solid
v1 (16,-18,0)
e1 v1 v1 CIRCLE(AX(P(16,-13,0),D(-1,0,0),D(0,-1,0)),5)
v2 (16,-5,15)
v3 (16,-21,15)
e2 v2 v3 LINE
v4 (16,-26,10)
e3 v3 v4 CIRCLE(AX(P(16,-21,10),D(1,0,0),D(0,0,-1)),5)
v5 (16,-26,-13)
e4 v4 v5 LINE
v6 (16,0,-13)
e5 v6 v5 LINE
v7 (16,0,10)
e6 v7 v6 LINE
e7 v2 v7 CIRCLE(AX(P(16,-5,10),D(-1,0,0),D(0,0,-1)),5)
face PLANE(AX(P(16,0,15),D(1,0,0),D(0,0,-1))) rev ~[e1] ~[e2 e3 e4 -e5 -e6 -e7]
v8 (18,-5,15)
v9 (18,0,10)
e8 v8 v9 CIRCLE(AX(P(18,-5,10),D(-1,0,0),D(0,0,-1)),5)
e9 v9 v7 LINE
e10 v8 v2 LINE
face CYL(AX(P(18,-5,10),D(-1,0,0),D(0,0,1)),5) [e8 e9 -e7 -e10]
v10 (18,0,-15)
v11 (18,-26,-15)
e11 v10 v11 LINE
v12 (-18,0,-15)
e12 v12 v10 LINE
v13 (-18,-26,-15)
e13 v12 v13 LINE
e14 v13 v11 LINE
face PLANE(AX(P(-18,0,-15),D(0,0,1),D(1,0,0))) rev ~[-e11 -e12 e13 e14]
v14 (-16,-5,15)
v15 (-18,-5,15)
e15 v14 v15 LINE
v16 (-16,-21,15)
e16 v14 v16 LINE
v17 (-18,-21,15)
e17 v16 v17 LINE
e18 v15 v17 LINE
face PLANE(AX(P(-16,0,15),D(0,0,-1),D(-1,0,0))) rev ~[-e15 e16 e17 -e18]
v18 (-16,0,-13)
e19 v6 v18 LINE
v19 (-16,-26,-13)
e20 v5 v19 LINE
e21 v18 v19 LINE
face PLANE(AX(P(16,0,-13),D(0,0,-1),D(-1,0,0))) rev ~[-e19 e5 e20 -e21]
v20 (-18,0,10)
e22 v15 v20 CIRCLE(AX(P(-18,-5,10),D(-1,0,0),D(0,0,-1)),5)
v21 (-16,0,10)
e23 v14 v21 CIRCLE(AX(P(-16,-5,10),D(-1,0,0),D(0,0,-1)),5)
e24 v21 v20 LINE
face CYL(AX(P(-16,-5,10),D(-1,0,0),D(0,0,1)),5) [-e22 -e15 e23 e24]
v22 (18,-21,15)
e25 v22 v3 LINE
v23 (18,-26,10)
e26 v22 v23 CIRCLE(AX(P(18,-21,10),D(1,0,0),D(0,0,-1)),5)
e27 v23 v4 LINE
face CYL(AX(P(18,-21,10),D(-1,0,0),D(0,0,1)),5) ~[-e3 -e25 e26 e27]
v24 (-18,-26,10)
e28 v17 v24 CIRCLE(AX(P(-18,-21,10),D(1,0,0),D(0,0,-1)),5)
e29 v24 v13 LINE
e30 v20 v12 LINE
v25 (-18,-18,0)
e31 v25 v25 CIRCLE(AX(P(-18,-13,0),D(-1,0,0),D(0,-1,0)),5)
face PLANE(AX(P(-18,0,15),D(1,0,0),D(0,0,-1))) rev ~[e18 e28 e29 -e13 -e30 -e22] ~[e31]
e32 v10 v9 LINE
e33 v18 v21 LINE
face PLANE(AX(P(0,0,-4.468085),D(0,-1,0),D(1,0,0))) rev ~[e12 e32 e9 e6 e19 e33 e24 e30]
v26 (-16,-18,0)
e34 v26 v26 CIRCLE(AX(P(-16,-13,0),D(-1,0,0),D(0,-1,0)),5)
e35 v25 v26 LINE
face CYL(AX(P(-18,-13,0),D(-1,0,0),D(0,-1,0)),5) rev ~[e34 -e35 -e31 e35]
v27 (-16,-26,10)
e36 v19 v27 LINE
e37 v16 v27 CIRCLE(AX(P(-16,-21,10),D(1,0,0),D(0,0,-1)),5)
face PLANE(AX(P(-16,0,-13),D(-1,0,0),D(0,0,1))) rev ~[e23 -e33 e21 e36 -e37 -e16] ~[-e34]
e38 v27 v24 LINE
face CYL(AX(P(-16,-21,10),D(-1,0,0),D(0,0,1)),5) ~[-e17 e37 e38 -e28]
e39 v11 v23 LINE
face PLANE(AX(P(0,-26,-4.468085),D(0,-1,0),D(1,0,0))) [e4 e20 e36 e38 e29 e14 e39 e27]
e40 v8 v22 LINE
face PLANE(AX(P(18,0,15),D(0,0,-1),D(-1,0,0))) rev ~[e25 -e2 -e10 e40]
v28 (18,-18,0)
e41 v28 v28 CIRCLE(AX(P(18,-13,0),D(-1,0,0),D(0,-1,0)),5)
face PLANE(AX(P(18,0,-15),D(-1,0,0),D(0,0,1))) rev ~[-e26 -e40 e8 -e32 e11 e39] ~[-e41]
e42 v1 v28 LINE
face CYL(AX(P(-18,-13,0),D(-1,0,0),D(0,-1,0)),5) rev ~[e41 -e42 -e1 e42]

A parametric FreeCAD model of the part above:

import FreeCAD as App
import Part
import Sketcher
Q = App.Units.Quantity


def edges_at(feature, points):
    """Names of the edges that pass closest to the given points."""
    edges = feature.Shape.Edges
    near = lambda p: min(range(len(edges)), key=lambda i: edges[i].distToShape(Part.Vertex(*p))[0])
    return sorted({f"Edge{near(p) + 1}" for p in points})


def add_polygon(sketch, points):
    """Adds a closed chain of lines whose ends are joined by coincident constraints."""
    first, n = sketch.GeometryCount, len(points)
    for a, b in zip(points, points[1:] + points[:1]):
        sketch.addGeometry(Part.LineSegment(App.Vector(*a, 0), App.Vector(*b, 0)), False)
    for i in range(n):
        sketch.addConstraint(Sketcher.Constraint("Coincident", first + i, 2, first + (i + 1) % n, 1))

doc = App.newDocument("Part")
params = doc.addObject("Spreadsheet::Sheet", "Params")
for row, (alias, value) in enumerate([
    ("sketch1_width", "2 mm"),
    ("sketch1_width2", "36 mm"),
    ("sketch1_height", "30 mm"),
    ("sketch1_height2", "28 mm"),
    ("pad1_length", "26 mm"),
    ("fillet_radius", "5 mm"),
    ("sketch2_diameter", "10 mm"),
    ("pocket1_length", "40 mm"),
], start=1):
    params.set(f"A{row}", alias)
    params.set(f"B{row}", "=" + value)
    params.setAlias(f"B{row}", alias)

body = doc.addObject("PartDesign::Body", "Body")

# Sketch on XZ plane
sketch1 = body.newObject("Sketcher::SketchObject", "Sketch")
sketch1.AttachmentSupport = (doc.getObject("XZ_Plane"), [""])
sketch1.MapMode = "FlatFace"
add_polygon(sketch1, [(-16, 15), (-18, 15), (-18, -15), (18, -15), (18, 15), (16, 15), (16, -13), (-16, -13)])  # lines 0-7
sketch1.addConstraint(Sketcher.Constraint("Horizontal", 0))
sketch1.addConstraint(Sketcher.Constraint("Vertical", 1))
sketch1.addConstraint(Sketcher.Constraint("Horizontal", 2))
sketch1.addConstraint(Sketcher.Constraint("Vertical", 3))
sketch1.addConstraint(Sketcher.Constraint("Horizontal", 4))
sketch1.addConstraint(Sketcher.Constraint("Vertical", 5))
sketch1.addConstraint(Sketcher.Constraint("Horizontal", 6))
sketch1.addConstraint(Sketcher.Constraint("Vertical", 7))
sketch1.addConstraint(Sketcher.Constraint("Symmetric", 0, 2, 2, 2, -1, 1))
sketch1.addConstraint(Sketcher.Constraint("Symmetric", 4, 2, 7, 2, -2))
sketch1.addConstraint(Sketcher.Constraint("DistanceX", 0, 2, 0, 1, Q("2 mm")))
sketch1.addConstraint(Sketcher.Constraint("DistanceX", 2, 1, 2, 2, Q("36 mm")))
sketch1.addConstraint(Sketcher.Constraint("DistanceY", 1, 2, 1, 1, Q("30 mm")))
sketch1.addConstraint(Sketcher.Constraint("DistanceY", 5, 2, 5, 1, Q("28 mm")))
sketch1.setExpression("Constraints[18]", "Params.sketch1_width")
sketch1.setExpression("Constraints[19]", "Params.sketch1_width2")
sketch1.setExpression("Constraints[20]", "Params.sketch1_height")
sketch1.setExpression("Constraints[21]", "Params.sketch1_height2")
pad1 = body.newObject("PartDesign::Pad", "Pad")
pad1.Profile = sketch1
pad1.setExpression("Length", "Params.pad1_length")
doc.recompute()

fillet = body.newObject("PartDesign::Fillet", "Fillet")
fillet.Base = (pad1, edges_at(pad1, [
    (-17, 0, 15),
    (17, 0, 15),
    (-17, -26, 15),
    (17, -26, 15),
]))
fillet.setExpression("Radius", "Params.fillet_radius")

# Sketch on YZ plane
sketch2 = body.newObject("Sketcher::SketchObject", "Sketch001")
sketch2.AttachmentSupport = (doc.getObject("YZ_Plane"), [""])
sketch2.MapMode = "FlatFace"
sketch2.AttachmentOffset = App.Placement(App.Vector(0, 0, -18), App.Rotation())
sketch2.addGeometry(Part.Circle(App.Vector(-13, 0, 0), App.Vector(0, 0, 1), 5), False)
sketch2.addConstraint(Sketcher.Constraint("PointOnObject", 0, 3, -1))
sketch2.addConstraint(Sketcher.Constraint("Diameter", 0, Q("10 mm")))
sketch2.addConstraint(Sketcher.Constraint("DistanceX", 0, 3, -1, 1, Q("13 mm")))
sketch2.setExpression("Constraints[1]", "Params.sketch2_diameter")
pocket1 = body.newObject("PartDesign::Pocket", "Pocket")
pocket1.Profile = sketch2
pocket1.setExpression("Length", "Params.pocket1_length")
pocket1.Reversed = True

doc.recompute()
